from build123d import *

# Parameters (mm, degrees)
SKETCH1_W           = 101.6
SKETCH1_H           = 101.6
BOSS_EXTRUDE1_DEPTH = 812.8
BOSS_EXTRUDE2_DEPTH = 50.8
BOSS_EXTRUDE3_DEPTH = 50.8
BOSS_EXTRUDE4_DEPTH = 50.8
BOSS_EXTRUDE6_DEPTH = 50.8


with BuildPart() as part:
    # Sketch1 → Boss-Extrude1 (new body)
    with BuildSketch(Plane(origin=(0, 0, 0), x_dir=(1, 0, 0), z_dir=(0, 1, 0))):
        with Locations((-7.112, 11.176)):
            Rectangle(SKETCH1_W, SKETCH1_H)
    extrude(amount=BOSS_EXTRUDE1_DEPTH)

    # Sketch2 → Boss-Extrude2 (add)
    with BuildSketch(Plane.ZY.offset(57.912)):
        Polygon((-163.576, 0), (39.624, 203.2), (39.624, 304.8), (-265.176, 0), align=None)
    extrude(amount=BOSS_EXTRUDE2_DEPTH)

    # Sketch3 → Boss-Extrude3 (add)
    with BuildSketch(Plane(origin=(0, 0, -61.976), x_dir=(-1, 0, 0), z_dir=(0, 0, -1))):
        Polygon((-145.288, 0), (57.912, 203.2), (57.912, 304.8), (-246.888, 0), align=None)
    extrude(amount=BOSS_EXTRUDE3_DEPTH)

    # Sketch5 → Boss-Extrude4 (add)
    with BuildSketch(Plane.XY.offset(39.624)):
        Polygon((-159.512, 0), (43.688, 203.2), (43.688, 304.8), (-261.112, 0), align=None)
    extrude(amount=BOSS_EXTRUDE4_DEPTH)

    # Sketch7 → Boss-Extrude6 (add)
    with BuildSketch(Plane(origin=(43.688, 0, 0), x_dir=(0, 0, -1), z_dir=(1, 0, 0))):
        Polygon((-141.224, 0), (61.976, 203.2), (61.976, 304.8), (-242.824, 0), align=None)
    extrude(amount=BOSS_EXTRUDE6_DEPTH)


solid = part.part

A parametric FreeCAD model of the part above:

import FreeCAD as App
import Part
import Sketcher

V = App.Vector
Q = App.Units.Quantity

doc = App.newDocument("Part")
body = doc.addObject("PartDesign::Body", "Body")

# Sketch on XZ plane
sketch1 = doc.addObject("Sketcher::SketchObject", "Sketch")
body.addObject(sketch1)
sketch1.AttachmentSupport = (doc.XZ_Plane, [""])
sketch1.MapMode = "FlatFace"
sketch1.addGeometry([
    Part.LineSegment(V(-58, -62, 0), V(-58, 40, 0)),
    Part.LineSegment(V(-58, 40, 0), V(44, 40, 0)),
    Part.LineSegment(V(44, 40, 0), V(44, -62, 0)),
    Part.LineSegment(V(44, -62, 0), V(-58, -62, 0)),
], False)
sketch1.addConstraint([
    Sketcher.Constraint("Coincident", 0, 2, 1, 1),
    Sketcher.Constraint("Coincident", 1, 2, 2, 1),
    Sketcher.Constraint("Coincident", 2, 2, 3, 1),
    Sketcher.Constraint("Coincident", 3, 2, 0, 1),
    Sketcher.Constraint("Vertical", 0),
    Sketcher.Constraint("Horizontal", 1),
    Sketcher.Constraint("Vertical", 2),
    Sketcher.Constraint("Horizontal", 3),
    Sketcher.Constraint("Equal", 3, 0),
    Sketcher.Constraint("DistanceX", 1, 1, 1, 2, Q("4 in")),
    Sketcher.Constraint("DistanceX", 0, 2, -1, 1, Q("2.28 in")),
    Sketcher.Constraint("DistanceY", -1, 1, 0, 2, Q("1.56 in")),
])
pad1 = doc.addObject("PartDesign::Pad", "Pad")
body.addObject(pad1)
pad1.Profile = sketch1
pad1.Length = Q("32 in")
pad1.Reversed = True

# Sketch on YZ plane
sketch2 = doc.addObject("Sketcher::SketchObject", "Sketch001")
body.addObject(sketch2)
sketch2.AttachmentSupport = (doc.YZ_Plane, [""])
sketch2.MapMode = "FlatFace"
sketch2.AttachmentOffset = App.Placement(V(0, 0, -2.28 * 25.4), App.Rotation())
sketch2.addGeometry([
    Part.LineSegment(V(0, -164, 0), V(203, 40, 0)),
    Part.LineSegment(V(203, 40, 0), V(305, 40, 0)),
    Part.LineSegment(V(305, 40, 0), V(0, -265, 0)),
    Part.LineSegment(V(0, -265, 0), V(0, -164, 0)),
], False)
sketch2.addConstraint([
    Sketcher.Constraint("Coincident", 0, 2, 1, 1),
    Sketcher.Constraint("Coincident", 1, 2, 2, 1),
    Sketcher.Constraint("Coincident", 2, 2, 3, 1),
    Sketcher.Constraint("Coincident", 3, 2, 0, 1),
    Sketcher.Constraint("Horizontal", 1),
    Sketcher.Constraint("Vertical", 3),
    Sketcher.Constraint("PointOnObject", 2, 2, -2),
    Sketcher.Constraint("Parallel", 0, 2),
    Sketcher.Constraint("Equal", 1, 3),
    Sketcher.Constraint("DistanceX", 1, 1, 1, 2, Q("4 in")),
    Sketcher.Constraint("DistanceX", -1, 1, 0, 2, Q("8 in")),
    Sketcher.Constraint("DistanceY", -1, 1, 0, 2, Q("1.56 in")),
])
pad2 = doc.addObject("PartDesign::Pad", "Pad001")
body.addObject(pad2)
pad2.Profile = sketch2
pad2.Length = Q("2 in")
pad2.Reversed = True

# Sketch on XY plane
sketch3 = doc.addObject("Sketcher::SketchObject", "Sketch002")
body.addObject(sketch3)
sketch3.AttachmentSupport = (doc.XY_Plane, [""])
sketch3.MapMode = "FlatFace"
sketch3.AttachmentOffset = App.Placement(V(0, 0, -2.44 * 25.4), App.Rotation())
sketch3.addGeometry([
    Part.LineSegment(V(145, 0, 0), V(-58, 203, 0)),
    Part.LineSegment(V(-58, 203, 0), V(-58, 305, 0)),
    Part.LineSegment(V(-58, 305, 0), V(247, 0, 0)),
    Part.LineSegment(V(247, 0, 0), V(145, 0, 0)),
], False)
sketch3.addConstraint([
    Sketcher.Constraint("Coincident", 0, 2, 1, 1),
    Sketcher.Constraint("Coincident", 1, 2, 2, 1),
    Sketcher.Constraint("Coincident", 2, 2, 3, 1),
    Sketcher.Constraint("Coincident", 3, 2, 0, 1),
    Sketcher.Constraint("Vertical", 1),
    Sketcher.Constraint("Horizontal", 3),
    Sketcher.Constraint("PointOnObject", 2, 2, -1),
    Sketcher.Constraint("Parallel", 0, 2),
    Sketcher.Constraint("Equal", 3, 1),
    Sketcher.Constraint("DistanceX", 3, 2, 3, 1, Q("4 in")),
    Sketcher.Constraint("DistanceY", -1, 1, 0, 2, Q("8 in")),
    Sketcher.Constraint("DistanceX", 0, 2, -1, 1, Q("2.28 in")),
])
pad3 = doc.addObject("PartDesign::Pad", "Pad002")
body.addObject(pad3)
pad3.Profile = sketch3
pad3.Length = Q("2 in")
pad3.Reversed = True

# Sketch on XY plane
sketch4 = doc.addObject("Sketcher::SketchObject", "Sketch003")
body.addObject(sketch4)
sketch4.AttachmentSupport = (doc.XY_Plane, [""])
sketch4.MapMode = "FlatFace"
sketch4.AttachmentOffset = App.Placement(V(0, 0, 1.56 * 25.4), App.Rotation())
sketch4.addGeometry([
    Part.LineSegment(V(-160, 0, 0), V(44, 203, 0)),
    Part.LineSegment(V(44, 203, 0), V(44, 305, 0)),
    Part.LineSegment(V(44, 305, 0), V(-261, 0, 0)),
    Part.LineSegment(V(-261, 0, 0), V(-160, 0, 0)),
], False)
sketch4.addConstraint([
    Sketcher.Constraint("Coincident", 0, 2, 1, 1),
    Sketcher.Constraint("Coincident", 1, 2, 2, 1),
    Sketcher.Constraint("Coincident", 2, 2, 3, 1),
    Sketcher.Constraint("Coincident", 3, 2, 0, 1),
    Sketcher.Constraint("Vertical", 1),
    Sketcher.Constraint("Horizontal", 3),
    Sketcher.Constraint("PointOnObject", 2, 2, -1),
    Sketcher.Constraint("Parallel", 0, 2),
    Sketcher.Constraint("Equal", 3, 1),
    Sketcher.Constraint("DistanceX", 3, 1, 3, 2, Q("4 in")),
    Sketcher.Constraint("DistanceY", -1, 1, 0, 2, Q("8 in")),
    Sketcher.Constraint("DistanceX", -1, 1, 0, 2, Q("1.72 in")),
])
pad4 = doc.addObject("PartDesign::Pad", "Pad003")
body.addObject(pad4)
pad4.Profile = sketch4
pad4.Length = Q("2 in")

# Sketch on YZ plane
sketch5 = doc.addObject("Sketcher::SketchObject", "Sketch004")
body.addObject(sketch5)
sketch5.AttachmentSupport = (doc.YZ_Plane, [""])
sketch5.MapMode = "FlatFace"
sketch5.AttachmentOffset = App.Placement(V(0, 0, 1.72 * 25.4), App.Rotation())
sketch5.addGeometry([
    Part.LineSegment(V(0, 141, 0), V(203, -62, 0)),
    Part.LineSegment(V(203, -62, 0), V(305, -62, 0)),
    Part.LineSegment(V(305, -62, 0), V(0, 243, 0)),
    Part.LineSegment(V(0, 243, 0), V(0, 141, 0)),
], False)
sketch5.addConstraint([
    Sketcher.Constraint("Coincident", 0, 2, 1, 1),
    Sketcher.Constraint("Coincident", 1, 2, 2, 1),
    Sketcher.Constraint("Coincident", 2, 2, 3, 1),
    Sketcher.Constraint("Coincident", 3, 2, 0, 1),
    Sketcher.Constraint("Horizontal", 1),
    Sketcher.Constraint("Vertical", 3),
    Sketcher.Constraint("PointOnObject", 2, 2, -2),
    Sketcher.Constraint("Parallel", 0, 2),
    Sketcher.Constraint("Equal", 1, 3),
    Sketcher.Constraint("DistanceX", 1, 1, 1, 2, Q("4 in")),
    Sketcher.Constraint("DistanceX", -1, 1, 0, 2, Q("8 in")),
    Sketcher.Constraint("DistanceY", 0, 2, -1, 1, Q("2.44 in")),
])
pad5 = doc.addObject("PartDesign::Pad", "Pad004")
body.addObject(pad5)
pad5.Profile = sketch5
pad5.Length = Q("2 in")

doc.recompute()
